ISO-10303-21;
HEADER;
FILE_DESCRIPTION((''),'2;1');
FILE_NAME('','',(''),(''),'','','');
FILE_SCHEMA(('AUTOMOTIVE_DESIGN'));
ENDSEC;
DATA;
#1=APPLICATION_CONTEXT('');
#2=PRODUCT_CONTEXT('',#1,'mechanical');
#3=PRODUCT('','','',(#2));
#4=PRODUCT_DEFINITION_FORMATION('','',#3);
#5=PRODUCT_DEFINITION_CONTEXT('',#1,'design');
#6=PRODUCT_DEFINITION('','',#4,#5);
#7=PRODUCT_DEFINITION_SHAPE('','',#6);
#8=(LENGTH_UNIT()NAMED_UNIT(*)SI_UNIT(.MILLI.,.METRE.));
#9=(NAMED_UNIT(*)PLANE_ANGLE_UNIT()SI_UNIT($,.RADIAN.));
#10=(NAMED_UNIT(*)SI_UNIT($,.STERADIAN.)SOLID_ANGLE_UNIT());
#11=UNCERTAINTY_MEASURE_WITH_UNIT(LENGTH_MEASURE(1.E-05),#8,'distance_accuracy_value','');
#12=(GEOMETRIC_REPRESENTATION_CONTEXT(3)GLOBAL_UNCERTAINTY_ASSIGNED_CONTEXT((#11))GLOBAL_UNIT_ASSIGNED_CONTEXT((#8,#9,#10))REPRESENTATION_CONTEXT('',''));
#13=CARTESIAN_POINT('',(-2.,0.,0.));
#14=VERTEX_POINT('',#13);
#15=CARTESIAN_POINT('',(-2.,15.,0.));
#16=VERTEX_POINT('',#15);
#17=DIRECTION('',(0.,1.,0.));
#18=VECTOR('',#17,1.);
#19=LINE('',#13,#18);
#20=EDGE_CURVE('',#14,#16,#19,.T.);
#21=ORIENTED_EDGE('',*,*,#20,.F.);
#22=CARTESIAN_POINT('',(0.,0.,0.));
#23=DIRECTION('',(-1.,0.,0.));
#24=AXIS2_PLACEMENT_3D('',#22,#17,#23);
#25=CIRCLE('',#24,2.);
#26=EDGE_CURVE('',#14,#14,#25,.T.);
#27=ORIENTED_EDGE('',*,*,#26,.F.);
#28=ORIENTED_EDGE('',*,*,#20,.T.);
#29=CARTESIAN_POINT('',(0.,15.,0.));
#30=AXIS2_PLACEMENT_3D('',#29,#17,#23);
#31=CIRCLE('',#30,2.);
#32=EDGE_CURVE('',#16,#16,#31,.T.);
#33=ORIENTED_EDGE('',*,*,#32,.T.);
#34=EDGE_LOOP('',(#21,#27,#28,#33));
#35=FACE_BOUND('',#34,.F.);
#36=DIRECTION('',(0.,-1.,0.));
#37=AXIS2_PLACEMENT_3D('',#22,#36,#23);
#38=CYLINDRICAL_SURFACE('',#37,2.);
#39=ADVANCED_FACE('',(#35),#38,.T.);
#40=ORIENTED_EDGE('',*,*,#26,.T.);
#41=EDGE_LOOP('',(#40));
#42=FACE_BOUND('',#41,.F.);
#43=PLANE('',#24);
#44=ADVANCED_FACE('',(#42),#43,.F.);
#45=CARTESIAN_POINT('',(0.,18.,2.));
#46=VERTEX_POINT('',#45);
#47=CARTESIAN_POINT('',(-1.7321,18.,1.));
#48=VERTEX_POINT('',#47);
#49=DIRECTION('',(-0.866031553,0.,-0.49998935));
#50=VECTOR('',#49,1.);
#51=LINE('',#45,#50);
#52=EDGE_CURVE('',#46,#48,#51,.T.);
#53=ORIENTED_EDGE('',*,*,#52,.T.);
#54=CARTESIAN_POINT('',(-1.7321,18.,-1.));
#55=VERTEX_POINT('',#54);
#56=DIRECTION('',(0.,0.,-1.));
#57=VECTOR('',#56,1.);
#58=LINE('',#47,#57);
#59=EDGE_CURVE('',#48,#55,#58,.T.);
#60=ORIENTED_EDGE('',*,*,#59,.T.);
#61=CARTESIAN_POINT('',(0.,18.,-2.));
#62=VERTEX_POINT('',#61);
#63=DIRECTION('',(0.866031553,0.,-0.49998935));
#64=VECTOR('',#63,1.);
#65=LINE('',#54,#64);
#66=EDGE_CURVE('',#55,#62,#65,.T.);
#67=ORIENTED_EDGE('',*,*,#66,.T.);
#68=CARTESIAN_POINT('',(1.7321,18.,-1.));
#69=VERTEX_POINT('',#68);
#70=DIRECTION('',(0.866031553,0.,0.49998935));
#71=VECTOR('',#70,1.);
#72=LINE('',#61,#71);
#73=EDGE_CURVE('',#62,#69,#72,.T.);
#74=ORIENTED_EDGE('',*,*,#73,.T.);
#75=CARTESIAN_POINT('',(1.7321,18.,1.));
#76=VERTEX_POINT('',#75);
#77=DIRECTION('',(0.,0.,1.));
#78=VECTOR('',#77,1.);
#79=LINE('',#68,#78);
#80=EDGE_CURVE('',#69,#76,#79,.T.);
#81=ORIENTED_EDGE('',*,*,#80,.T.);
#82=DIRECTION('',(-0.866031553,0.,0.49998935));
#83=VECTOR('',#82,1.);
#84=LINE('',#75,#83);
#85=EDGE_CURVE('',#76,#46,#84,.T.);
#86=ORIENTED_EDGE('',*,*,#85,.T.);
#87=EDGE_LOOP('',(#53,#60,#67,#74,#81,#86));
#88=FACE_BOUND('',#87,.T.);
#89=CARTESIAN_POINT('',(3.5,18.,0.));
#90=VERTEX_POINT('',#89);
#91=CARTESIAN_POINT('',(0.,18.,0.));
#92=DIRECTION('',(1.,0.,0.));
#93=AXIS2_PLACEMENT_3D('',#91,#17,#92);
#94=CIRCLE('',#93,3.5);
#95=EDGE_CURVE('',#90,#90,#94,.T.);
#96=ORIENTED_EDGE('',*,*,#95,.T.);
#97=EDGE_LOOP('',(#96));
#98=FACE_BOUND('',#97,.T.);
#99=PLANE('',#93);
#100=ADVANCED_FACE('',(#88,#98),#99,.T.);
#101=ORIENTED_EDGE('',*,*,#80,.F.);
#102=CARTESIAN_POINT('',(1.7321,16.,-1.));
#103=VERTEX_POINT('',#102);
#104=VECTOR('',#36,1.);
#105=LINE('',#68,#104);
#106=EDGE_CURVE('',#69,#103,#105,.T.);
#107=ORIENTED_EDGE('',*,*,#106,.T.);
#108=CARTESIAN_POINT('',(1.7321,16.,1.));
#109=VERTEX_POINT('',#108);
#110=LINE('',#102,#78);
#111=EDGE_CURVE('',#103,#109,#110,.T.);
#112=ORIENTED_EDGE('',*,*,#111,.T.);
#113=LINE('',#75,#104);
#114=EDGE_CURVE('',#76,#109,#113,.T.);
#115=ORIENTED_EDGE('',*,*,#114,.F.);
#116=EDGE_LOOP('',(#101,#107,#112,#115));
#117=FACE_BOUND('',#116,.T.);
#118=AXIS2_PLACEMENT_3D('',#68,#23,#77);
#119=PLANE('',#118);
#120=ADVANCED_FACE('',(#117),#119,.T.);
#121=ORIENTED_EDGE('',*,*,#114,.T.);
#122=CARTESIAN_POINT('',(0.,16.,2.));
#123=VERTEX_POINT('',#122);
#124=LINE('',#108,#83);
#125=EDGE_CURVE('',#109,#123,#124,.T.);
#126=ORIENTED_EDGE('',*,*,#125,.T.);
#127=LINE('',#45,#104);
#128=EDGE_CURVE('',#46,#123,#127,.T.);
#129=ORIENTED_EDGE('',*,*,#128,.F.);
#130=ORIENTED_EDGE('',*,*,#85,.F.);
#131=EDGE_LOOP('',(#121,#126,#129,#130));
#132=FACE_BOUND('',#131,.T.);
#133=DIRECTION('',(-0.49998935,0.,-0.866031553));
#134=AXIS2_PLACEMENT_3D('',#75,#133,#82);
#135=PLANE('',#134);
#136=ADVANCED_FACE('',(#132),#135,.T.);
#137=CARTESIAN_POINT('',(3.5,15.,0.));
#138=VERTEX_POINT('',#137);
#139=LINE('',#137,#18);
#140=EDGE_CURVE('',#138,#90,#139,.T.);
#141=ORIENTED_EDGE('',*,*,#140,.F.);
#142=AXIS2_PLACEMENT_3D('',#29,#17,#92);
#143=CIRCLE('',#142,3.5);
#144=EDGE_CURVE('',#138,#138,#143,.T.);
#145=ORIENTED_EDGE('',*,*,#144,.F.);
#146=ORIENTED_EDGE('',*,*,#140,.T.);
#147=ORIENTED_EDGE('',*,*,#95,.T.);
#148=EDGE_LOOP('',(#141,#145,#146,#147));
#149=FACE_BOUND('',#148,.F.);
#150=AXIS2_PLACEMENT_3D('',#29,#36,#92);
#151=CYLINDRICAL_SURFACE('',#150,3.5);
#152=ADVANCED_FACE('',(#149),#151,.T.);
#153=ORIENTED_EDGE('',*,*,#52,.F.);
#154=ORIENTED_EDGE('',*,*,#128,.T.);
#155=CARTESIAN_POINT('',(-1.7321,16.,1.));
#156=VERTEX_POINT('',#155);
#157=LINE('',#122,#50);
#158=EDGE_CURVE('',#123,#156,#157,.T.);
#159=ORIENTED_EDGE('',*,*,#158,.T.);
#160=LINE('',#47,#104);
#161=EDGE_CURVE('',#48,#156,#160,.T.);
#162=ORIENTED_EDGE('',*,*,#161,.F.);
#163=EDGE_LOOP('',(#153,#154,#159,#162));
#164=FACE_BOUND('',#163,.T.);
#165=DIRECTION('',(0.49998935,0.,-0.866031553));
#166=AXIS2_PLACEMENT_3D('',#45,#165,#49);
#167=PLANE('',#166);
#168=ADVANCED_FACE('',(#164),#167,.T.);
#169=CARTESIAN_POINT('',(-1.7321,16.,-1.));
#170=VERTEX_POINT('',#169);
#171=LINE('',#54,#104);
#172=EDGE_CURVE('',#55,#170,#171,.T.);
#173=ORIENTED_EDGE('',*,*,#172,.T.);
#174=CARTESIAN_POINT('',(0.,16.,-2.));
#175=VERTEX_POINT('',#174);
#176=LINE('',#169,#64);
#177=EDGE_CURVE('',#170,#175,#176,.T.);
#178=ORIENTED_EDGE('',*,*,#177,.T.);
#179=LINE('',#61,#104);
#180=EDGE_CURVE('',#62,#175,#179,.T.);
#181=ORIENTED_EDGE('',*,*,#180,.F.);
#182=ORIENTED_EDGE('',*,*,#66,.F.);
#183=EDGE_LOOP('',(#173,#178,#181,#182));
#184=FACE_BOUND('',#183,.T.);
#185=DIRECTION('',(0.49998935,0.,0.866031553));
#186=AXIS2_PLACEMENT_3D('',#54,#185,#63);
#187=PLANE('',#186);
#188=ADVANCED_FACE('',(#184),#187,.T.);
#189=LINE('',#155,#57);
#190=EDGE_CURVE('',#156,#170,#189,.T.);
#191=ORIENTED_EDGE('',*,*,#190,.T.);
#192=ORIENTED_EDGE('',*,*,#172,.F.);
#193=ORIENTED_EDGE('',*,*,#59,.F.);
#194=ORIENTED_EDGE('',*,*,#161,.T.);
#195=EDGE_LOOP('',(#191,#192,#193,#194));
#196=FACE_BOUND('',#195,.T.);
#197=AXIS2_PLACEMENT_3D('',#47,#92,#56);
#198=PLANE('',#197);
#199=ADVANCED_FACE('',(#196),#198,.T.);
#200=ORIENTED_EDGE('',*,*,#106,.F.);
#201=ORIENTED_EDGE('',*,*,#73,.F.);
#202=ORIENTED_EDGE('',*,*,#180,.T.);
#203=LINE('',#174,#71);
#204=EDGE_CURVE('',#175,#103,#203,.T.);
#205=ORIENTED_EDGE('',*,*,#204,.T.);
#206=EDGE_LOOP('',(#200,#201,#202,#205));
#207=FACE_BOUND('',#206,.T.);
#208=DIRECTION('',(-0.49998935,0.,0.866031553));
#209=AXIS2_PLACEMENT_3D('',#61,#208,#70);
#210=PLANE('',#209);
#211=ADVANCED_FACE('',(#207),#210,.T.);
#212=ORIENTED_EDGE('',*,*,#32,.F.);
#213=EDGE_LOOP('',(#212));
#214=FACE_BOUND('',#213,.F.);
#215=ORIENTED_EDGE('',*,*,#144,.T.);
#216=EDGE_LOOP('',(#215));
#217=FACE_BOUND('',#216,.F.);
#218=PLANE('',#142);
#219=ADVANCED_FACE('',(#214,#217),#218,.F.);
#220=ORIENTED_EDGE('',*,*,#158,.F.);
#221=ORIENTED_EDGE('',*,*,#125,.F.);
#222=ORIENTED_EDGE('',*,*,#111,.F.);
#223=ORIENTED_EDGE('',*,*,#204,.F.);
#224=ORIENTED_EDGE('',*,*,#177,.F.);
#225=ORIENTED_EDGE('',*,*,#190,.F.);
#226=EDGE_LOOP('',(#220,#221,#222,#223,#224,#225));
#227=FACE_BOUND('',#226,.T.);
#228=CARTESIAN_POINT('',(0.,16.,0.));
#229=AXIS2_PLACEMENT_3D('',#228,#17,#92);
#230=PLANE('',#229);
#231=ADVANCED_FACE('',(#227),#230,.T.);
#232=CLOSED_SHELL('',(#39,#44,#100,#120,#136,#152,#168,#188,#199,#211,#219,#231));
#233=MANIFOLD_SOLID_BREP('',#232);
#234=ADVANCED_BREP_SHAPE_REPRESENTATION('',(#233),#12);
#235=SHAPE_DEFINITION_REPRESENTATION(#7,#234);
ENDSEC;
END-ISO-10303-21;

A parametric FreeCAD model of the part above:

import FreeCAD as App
import Part
import Sketcher

V = App.Vector
Q = App.Units.Quantity


def add_polygon(sketch, points):
    """Adds a closed chain of lines whose ends are joined by coincident constraints."""
    first, n = sketch.GeometryCount, len(points)
    for a, b in zip(points, points[1:] + points[:1]):
        sketch.addGeometry(Part.LineSegment(App.Vector(*a, 0), App.Vector(*b, 0)), False)
    for i in range(n):
        sketch.addConstraint(Sketcher.Constraint("Coincident", first + i, 2, first + (i + 1) % n, 1))

doc = App.newDocument("Part")
body = doc.addObject("PartDesign::Body", "Body")

sketch1 = body.newObject("Sketcher::SketchObject", "Sketch")
sketch1.AttachmentSupport = (doc.getObject("XZ_Plane"), [""])
sketch1.MapMode = "FlatFace"
sketch1.addGeometry(Part.Circle(V(0, 0, 0), V(0, 0, 1), 2), False)
sketch1.addConstraint([
    Sketcher.Constraint("Coincident", 0, 3, -1, 1),
    Sketcher.Constraint("Diameter", 0, 4.0),
])
pad1 = body.newObject("PartDesign::Pad", "Pad")
pad1.Profile = sketch1
pad1.Length = 15
pad1.Reversed = True

sketch2 = body.newObject("Sketcher::SketchObject", "Sketch001")
sketch2.AttachmentSupport = (doc.getObject("XZ_Plane"), [""])
sketch2.MapMode = "FlatFace"
sketch2.AttachmentOffset = App.Placement(V(0, 0, -15), App.Rotation())
sketch2.addGeometry(Part.Circle(V(0, 0, 0), V(0, 0, 1), 3.5), False)
sketch2.addConstraint([
    Sketcher.Constraint("Coincident", 0, 3, -1, 1),
    Sketcher.Constraint("Diameter", 0, 7.0),
])
pad2 = body.newObject("PartDesign::Pad", "Pad001")
pad2.Profile = sketch2
pad2.Length = 3
pad2.Reversed = True

sketch3 = body.newObject("Sketcher::SketchObject", "Sketch002")
sketch3.AttachmentSupport = (doc.getObject("XZ_Plane"), [""])
sketch3.MapMode = "FlatFace"
sketch3.AttachmentOffset = App.Placement(V(0, 0, -18), App.Rotation())
add_polygon(sketch3, [(1.7321, 1), (1.7321, -1), (0, -2), (-1.7321, -1), (-1.7321, 1), (0, 2)])
sketch3.addConstraint([
    Sketcher.Constraint("Vertical", 0),
    Sketcher.Constraint("Vertical", 3),
    Sketcher.Constraint("Symmetric", 0, 2, 3, 2, -1, 1),
    Sketcher.Constraint("Symmetric", 1, 2, 4, 2, -1, 1),
    Sketcher.Constraint("PointOnObject", 1, 2, -2),
    Sketcher.Constraint("Parallel", 2, 5),
    Sketcher.Constraint("Horizontal", 0, 2, 2, 2),
    Sketcher.Constraint("DistanceY", 0, 2, 0, 1, 2.0),
    Sketcher.Constraint("Angle", 1, Q("-150.0007 deg")),
    Sketcher.Constraint("Distance", 1, 2.0),
])
pocket1 = body.newObject("PartDesign::Pocket", "Pocket")
pocket1.Profile = sketch3
pocket1.Length = 2
pocket1.Reversed = True

doc.recompute()
